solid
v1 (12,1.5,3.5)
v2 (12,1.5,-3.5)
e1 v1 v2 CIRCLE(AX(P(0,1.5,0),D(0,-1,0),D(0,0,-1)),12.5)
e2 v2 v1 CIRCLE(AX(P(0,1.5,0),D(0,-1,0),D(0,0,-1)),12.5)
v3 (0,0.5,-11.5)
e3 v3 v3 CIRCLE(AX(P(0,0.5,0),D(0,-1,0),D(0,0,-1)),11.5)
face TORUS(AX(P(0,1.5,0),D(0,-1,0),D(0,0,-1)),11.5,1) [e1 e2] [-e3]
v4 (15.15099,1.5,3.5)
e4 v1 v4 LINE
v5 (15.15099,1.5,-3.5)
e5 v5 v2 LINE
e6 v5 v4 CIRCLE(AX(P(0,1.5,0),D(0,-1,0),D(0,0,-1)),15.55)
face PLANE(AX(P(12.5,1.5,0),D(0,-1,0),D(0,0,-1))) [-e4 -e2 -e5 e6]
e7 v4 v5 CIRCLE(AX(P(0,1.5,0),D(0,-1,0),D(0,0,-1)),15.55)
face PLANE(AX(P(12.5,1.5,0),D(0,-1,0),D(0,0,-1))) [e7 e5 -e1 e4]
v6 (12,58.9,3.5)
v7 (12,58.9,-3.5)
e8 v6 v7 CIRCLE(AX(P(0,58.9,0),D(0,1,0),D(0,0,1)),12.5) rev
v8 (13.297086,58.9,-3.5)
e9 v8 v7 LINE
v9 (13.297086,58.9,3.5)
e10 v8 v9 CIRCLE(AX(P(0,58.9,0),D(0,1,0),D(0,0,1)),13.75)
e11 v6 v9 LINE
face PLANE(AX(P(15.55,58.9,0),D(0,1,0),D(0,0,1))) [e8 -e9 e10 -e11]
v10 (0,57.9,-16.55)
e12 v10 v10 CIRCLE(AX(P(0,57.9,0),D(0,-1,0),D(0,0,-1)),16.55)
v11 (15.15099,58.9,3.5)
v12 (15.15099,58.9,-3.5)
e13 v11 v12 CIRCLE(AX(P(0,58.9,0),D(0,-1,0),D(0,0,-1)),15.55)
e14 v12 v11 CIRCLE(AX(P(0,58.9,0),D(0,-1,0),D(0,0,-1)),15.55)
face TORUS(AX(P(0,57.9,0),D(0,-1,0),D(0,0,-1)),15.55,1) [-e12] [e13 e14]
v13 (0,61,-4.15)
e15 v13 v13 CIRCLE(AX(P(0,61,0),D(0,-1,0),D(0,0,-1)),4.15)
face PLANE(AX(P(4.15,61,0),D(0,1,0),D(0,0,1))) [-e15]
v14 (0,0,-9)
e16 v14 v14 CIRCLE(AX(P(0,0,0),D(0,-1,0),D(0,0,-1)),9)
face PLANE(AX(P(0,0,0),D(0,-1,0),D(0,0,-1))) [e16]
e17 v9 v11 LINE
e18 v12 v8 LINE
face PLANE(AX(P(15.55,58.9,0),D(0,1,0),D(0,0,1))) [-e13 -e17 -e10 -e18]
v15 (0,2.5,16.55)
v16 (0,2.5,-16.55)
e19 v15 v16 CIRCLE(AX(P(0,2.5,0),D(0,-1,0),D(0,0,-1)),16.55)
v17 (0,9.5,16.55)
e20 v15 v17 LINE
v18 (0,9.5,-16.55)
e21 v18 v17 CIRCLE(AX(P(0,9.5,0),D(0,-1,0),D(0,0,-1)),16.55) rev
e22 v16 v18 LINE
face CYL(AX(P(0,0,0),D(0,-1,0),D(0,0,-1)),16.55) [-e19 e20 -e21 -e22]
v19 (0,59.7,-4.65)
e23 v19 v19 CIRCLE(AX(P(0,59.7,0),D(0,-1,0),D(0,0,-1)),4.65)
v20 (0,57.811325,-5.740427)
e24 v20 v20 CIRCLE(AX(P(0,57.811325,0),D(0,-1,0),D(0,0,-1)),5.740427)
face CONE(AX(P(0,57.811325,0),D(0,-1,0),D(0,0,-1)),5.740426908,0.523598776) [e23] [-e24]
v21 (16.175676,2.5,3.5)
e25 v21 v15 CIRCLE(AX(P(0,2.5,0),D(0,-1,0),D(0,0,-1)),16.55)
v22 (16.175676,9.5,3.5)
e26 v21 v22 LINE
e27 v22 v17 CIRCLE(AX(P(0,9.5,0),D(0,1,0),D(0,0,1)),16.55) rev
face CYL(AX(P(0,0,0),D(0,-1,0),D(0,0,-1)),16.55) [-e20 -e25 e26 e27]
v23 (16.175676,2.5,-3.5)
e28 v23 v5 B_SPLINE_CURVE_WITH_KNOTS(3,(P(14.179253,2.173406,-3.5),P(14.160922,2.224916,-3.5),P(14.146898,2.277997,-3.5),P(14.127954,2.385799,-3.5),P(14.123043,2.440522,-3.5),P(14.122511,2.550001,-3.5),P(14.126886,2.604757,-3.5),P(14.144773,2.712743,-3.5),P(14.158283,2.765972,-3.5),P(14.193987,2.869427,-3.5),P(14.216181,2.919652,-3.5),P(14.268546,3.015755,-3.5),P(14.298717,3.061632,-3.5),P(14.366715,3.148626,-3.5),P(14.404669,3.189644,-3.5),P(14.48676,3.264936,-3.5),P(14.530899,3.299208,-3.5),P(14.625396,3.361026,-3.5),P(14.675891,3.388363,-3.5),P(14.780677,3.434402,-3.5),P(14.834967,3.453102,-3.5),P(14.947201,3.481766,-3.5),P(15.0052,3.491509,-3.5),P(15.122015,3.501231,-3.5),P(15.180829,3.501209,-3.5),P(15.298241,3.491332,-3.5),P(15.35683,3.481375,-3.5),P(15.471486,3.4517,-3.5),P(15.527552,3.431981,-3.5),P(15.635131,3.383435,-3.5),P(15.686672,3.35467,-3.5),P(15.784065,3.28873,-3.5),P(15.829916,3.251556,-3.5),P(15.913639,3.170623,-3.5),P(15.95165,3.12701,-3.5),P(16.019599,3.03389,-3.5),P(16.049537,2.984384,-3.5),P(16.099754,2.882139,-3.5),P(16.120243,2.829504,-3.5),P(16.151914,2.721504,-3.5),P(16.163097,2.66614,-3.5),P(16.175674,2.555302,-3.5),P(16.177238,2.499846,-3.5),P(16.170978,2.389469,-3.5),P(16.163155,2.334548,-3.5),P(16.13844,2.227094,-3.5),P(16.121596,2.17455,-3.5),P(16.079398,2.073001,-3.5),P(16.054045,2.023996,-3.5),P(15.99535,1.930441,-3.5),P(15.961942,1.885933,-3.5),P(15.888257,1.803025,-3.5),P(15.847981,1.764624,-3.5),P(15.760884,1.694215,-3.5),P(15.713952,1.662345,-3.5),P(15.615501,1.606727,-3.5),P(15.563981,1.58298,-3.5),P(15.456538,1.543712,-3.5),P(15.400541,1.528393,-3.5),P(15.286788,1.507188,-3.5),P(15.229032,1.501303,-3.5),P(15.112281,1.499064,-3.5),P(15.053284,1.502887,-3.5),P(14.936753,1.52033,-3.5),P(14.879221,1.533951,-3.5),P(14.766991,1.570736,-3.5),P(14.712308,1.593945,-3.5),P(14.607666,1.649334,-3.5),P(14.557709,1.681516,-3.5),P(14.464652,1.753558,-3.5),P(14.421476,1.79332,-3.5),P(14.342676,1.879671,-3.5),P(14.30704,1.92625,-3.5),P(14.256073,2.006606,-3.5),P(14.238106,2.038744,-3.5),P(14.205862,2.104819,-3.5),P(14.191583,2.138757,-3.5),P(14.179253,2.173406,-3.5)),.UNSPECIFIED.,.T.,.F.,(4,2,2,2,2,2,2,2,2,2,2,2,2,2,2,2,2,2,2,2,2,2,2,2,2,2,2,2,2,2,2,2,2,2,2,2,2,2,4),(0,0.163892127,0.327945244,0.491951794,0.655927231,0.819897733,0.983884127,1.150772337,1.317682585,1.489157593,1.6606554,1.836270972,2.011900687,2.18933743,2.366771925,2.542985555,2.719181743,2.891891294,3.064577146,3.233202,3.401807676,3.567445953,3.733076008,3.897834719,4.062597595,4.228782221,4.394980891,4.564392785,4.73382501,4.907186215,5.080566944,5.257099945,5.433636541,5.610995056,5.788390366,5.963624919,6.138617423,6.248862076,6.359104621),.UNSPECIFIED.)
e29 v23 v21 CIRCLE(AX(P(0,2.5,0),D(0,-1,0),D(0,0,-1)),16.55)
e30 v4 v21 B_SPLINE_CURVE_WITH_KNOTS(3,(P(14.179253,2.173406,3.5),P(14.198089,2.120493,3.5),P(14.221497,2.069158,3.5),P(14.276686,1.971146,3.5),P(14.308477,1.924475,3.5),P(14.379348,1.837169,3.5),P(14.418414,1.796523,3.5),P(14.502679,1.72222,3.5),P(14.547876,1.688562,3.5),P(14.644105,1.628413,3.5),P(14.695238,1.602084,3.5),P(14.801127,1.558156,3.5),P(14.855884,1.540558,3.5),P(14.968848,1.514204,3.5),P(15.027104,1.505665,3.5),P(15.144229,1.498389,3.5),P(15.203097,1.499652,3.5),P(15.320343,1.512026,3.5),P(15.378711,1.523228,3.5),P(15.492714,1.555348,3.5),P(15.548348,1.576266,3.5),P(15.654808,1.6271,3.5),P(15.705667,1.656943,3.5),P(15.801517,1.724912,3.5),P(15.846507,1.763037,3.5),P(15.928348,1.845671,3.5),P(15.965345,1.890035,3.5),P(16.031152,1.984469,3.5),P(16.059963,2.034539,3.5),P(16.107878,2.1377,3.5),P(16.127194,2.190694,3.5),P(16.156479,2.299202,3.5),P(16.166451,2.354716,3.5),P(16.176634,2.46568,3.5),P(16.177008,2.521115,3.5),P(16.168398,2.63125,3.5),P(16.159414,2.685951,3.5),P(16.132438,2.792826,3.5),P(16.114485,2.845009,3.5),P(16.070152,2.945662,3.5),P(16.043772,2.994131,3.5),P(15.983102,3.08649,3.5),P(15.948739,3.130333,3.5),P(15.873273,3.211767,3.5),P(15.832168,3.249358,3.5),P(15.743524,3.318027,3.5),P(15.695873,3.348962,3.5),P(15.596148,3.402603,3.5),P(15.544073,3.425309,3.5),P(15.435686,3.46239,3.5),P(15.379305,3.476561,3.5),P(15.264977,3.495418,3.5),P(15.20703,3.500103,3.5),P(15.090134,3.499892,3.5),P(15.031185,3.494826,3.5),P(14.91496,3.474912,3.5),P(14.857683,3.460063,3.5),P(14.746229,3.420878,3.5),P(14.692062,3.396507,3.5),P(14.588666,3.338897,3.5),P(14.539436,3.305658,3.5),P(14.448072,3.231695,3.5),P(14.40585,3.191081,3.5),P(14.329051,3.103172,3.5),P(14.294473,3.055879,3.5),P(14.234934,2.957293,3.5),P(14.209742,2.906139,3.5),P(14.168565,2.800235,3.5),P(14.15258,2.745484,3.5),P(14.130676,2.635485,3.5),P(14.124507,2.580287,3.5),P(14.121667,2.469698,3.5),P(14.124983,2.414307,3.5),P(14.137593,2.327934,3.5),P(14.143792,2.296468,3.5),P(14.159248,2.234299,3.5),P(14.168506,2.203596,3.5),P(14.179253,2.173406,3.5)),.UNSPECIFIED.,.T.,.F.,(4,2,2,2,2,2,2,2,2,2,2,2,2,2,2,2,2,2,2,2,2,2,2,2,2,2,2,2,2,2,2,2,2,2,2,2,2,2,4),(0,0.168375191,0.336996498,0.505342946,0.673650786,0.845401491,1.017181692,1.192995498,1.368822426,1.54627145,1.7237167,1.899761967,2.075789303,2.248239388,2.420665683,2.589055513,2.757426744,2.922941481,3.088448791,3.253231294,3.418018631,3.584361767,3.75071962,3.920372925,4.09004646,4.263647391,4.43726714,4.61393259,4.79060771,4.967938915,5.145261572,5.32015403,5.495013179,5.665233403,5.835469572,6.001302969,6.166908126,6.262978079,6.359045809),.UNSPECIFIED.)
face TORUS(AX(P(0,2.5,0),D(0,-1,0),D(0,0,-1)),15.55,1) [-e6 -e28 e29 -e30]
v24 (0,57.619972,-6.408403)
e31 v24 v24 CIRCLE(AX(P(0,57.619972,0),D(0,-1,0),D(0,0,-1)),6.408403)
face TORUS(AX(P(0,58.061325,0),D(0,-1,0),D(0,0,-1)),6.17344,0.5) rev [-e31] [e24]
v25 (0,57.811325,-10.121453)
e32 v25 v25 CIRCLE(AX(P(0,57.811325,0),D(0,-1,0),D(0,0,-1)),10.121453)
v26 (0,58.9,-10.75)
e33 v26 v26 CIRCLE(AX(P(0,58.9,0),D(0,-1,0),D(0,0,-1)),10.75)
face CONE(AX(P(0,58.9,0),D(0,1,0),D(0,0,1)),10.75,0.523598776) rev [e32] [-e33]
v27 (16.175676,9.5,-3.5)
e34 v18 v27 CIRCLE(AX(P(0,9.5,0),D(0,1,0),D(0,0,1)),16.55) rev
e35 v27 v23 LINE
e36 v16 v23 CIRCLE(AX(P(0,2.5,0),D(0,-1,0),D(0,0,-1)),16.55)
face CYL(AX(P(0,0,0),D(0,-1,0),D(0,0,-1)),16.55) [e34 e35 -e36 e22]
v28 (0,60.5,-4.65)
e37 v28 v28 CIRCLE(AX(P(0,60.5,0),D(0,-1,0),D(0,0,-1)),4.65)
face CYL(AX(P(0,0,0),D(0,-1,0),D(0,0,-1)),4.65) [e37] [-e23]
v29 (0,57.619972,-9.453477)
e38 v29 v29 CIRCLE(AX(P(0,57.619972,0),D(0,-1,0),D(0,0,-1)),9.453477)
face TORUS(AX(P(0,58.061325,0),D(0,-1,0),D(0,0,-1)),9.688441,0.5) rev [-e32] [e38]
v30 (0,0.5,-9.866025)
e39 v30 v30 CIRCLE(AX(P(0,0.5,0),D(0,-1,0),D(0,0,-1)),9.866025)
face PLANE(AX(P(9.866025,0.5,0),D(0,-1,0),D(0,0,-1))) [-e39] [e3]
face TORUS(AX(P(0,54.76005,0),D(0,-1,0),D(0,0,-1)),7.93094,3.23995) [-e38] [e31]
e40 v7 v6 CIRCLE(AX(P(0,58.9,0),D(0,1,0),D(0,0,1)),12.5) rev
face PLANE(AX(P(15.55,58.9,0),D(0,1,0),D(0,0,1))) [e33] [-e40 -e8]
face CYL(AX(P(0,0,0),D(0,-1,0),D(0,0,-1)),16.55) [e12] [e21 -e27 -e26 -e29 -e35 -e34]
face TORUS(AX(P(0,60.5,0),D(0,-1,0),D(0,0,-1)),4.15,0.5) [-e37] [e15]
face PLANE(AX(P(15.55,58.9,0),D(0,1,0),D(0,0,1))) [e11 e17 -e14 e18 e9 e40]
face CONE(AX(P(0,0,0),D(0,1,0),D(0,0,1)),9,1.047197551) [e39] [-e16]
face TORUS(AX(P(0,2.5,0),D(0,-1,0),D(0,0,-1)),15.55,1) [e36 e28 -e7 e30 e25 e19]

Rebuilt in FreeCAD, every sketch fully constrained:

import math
import FreeCAD as App
import Part
import Sketcher

V = App.Vector
Q = App.Units.Quantity

doc = App.newDocument("Part")
params = doc.addObject("Spreadsheet::Sheet", "Params")
for row, (alias, value) in enumerate([
    ("sketch1_radius", "1 mm"),
    ("sketch1_radius2", "0.5 mm"),
    ("sketch1_width", "9 mm"),
    ("sketch1_height", "61 mm"),
    ("sketch1_length", "1 mm"),
    ("revolution_angle", "360 deg"),
], start=1):
    params.set(f"A{row}", alias)
    params.set(f"B{row}", "=" + value)
    params.setAlias(f"B{row}", alias)

body = doc.addObject("PartDesign::Body", "Body")

# Sketch on XY plane
sketch1 = doc.addObject("Sketcher::SketchObject", "Sketch")
body.addObject(sketch1)
sketch1.AttachmentSupport = (doc.XY_Plane, [""])
sketch1.MapMode = "FlatFace"
sketch1.addGeometry([
    Part.LineSegment(V(0, 0, 0), V(9, 0, 0)),  # 0
    Part.LineSegment(V(9, 0, 0), V(9.87, 0.5, 0)),  # 1
    Part.LineSegment(V(9.87, 0.5, 0), V(11.5, 0.5, 0)),  # 2
    Part.ArcOfCircle(Part.Circle(V(11.5, 1.5, 0), V(0, 0, 1), 1), math.radians(-90), math.radians(0)),  # 3
    Part.LineSegment(V(12.5, 1.5, 0), V(15.55, 1.5, 0)),  # 4
    Part.ArcOfCircle(Part.Circle(V(15.55, 2.5, 0), V(0, 0, 1), 1), math.radians(-90), math.radians(0)),  # 5
    Part.LineSegment(V(16.55, 2.5, 0), V(16.55, 57.9, 0)),  # 6
    Part.ArcOfCircle(Part.Circle(V(15.55, 57.9, 0), V(0, 0, 1), 1), math.radians(0), math.radians(90)),  # 7
    Part.LineSegment(V(15.55, 58.9, 0), V(10.75, 58.9, 0)),  # 8
    Part.LineSegment(V(10.75, 58.9, 0), V(10.12, 57.81, 0)),  # 9
    Part.ArcOfCircle(Part.Circle(V(9.69, 58.06, 0), V(0, 0, 1), 0.5), math.radians(-118), math.radians(-30)),  # 10
    Part.ArcOfCircle(Part.Circle(V(7.93, 54.76, 0), V(0, 0, 1), 3.24), math.radians(62), math.radians(118)),  # 11
    Part.ArcOfCircle(Part.Circle(V(6.17, 58.06, 0), V(0, 0, 1), 0.5), math.radians(-150), math.radians(-62)),  # 12
    Part.LineSegment(V(5.74, 57.81, 0), V(4.65, 59.7, 0)),  # 13
    Part.LineSegment(V(4.65, 59.7, 0), V(4.65, 60.5, 0)),  # 14
    Part.ArcOfCircle(Part.Circle(V(4.15, 60.5, 0), V(0, 0, 1), 0.5), math.radians(0), math.radians(90)),  # 15
    Part.LineSegment(V(4.15, 61, 0), V(0, 61, 0)),  # 16
    Part.LineSegment(V(0, 61, 0), V(0, 0, 0)),  # 17
], False)
sketch1.addConstraint([
    Sketcher.Constraint("Coincident", 0, 2, 1, 1),
    Sketcher.Constraint("Coincident", 1, 2, 2, 1),
    Sketcher.Constraint("Tangent", 2, 2, 3, 1),
    Sketcher.Constraint("Coincident", 3, 2, 4, 1),
    Sketcher.Constraint("Tangent", 4, 2, 5, 1),
    Sketcher.Constraint("Tangent", 5, 2, 6, 1),
    Sketcher.Constraint("Tangent", 6, 2, 7, 1),
    Sketcher.Constraint("Tangent", 7, 2, 8, 1),
    Sketcher.Constraint("Coincident", 8, 2, 9, 1),
    Sketcher.Constraint("Tangent", 9, 2, 10, 2),
    Sketcher.Constraint("Tangent", 10, 1, 11, 1),
    Sketcher.Constraint("Tangent", 11, 2, 12, 2),
    Sketcher.Constraint("Tangent", 12, 1, 13, 1),
    Sketcher.Constraint("Coincident", 13, 2, 14, 1),
    Sketcher.Constraint("Tangent", 14, 2, 15, 1),
    Sketcher.Constraint("Tangent", 15, 2, 16, 1),
    Sketcher.Constraint("Coincident", 16, 2, 17, 1),
    Sketcher.Constraint("Coincident", 17, 2, 0, 1),
    Sketcher.Constraint("Horizontal", 0),
    Sketcher.Constraint("Horizontal", 2),
    Sketcher.Constraint("Horizontal", 4),
    Sketcher.Constraint("Vertical", 6),
    Sketcher.Constraint("Horizontal", 8),
    Sketcher.Constraint("Vertical", 14),
    Sketcher.Constraint("Horizontal", 16),
    Sketcher.Constraint("Vertical", 17),
    Sketcher.Constraint("Coincident", 17, 2, -1, 1),
    Sketcher.Constraint("Equal", 3, 5),
    Sketcher.Constraint("Equal", 5, 7),
    Sketcher.Constraint("Equal", 10, 12),
    Sketcher.Constraint("Equal", 12, 15),
    Sketcher.Constraint("Perpendicular", 1, 13),
    Sketcher.Constraint("Horizontal", 10, 3, 12, 3),
    Sketcher.Constraint("Horizontal", 9, 2, 12, 1),
    Sketcher.Constraint("Radius", 3, 1.0),
    Sketcher.Constraint("Radius", 10, 0.5),
    Sketcher.Constraint("DistanceX", 0, 1, 0, 2, 9.0),
    Sketcher.Constraint("DistanceY", 17, 2, 17, 1, 61.0),
    Sketcher.Constraint("Angle", 1, Q("30 deg")),
    Sketcher.Constraint("Distance", 1, 1.0),
    Sketcher.Constraint("DistanceX", 8, 2, 8, 1, 4.8),
    Sketcher.Constraint("DistanceY", 6, 1, 6, 2, 55.4),
    Sketcher.Constraint("DistanceY", 14, 1, 14, 2, 0.8),
    Sketcher.Constraint("DistanceY", 3, 3, 5, 3, 1.0),
    Sketcher.Constraint("DistanceX", 4, 1, 4, 2, 3.05),
    Sketcher.Constraint("DistanceX", 16, 2, 16, 1, 4.15),
    Sketcher.Constraint("DistanceX", -1, 1, 3, 3, 11.5),
    Sketcher.Constraint("Radius", 11, 3.23995),
    Sketcher.Constraint("DistanceX", 12, 3, 10, 3, 3.515001),
])
sketch1.setExpression("Constraints[34]", "Params.sketch1_radius")
sketch1.setExpression("Constraints[35]", "Params.sketch1_radius2")
sketch1.setExpression("Constraints[36]", "Params.sketch1_width")
sketch1.setExpression("Constraints[37]", "Params.sketch1_height")
sketch1.setExpression("Constraints[39]", "Params.sketch1_length")
revolution = doc.addObject("PartDesign::Revolution", "Revolution")
body.addObject(revolution)
revolution.Profile = sketch1
revolution.ReferenceAxis = (sketch1, ["V_Axis"])
revolution.setExpression("Angle", "Params.revolution_angle")

doc.recompute()
